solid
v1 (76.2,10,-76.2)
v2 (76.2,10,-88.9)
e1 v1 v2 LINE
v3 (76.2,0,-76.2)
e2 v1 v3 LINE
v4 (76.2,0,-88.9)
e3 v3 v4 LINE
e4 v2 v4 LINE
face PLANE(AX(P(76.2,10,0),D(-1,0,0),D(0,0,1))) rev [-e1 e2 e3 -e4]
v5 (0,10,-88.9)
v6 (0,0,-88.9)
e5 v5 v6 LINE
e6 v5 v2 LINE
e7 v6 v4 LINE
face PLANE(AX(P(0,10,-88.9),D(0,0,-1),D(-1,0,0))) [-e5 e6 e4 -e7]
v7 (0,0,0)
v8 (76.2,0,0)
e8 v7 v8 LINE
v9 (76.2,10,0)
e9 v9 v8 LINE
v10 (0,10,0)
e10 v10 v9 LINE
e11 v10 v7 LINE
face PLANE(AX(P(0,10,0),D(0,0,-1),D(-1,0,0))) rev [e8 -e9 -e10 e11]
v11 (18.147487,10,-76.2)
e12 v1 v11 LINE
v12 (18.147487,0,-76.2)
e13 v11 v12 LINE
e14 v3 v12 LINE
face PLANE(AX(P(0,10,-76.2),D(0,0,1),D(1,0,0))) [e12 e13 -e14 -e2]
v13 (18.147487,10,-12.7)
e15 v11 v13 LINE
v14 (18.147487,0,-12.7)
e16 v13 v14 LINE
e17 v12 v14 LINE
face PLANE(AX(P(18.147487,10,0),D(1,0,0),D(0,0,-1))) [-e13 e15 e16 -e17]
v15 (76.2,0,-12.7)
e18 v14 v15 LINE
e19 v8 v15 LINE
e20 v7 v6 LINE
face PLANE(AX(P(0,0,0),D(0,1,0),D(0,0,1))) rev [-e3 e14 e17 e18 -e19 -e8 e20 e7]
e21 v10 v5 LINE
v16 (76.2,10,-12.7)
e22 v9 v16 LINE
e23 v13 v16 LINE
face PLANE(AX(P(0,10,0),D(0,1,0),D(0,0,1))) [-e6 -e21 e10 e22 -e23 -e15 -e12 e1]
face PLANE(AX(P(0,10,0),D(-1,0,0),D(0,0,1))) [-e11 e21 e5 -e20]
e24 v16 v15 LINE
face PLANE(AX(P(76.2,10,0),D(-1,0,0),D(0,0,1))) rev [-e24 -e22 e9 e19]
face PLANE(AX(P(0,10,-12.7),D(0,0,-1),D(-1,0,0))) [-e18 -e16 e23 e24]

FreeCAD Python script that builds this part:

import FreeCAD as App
import Part
import Sketcher
from FreeCAD import Vector
Q = App.Units.Quantity


def add_polygon(sketch, points):
    """Adds a closed chain of lines whose ends are joined by coincident constraints."""
    first, n = sketch.GeometryCount, len(points)
    for a, b in zip(points, points[1:] + points[:1]):
        sketch.addGeometry(Part.LineSegment(App.Vector(*a, 0), App.Vector(*b, 0)), False)
    for i in range(n):
        sketch.addConstraint(Sketcher.Constraint("Coincident", first + i, 2, first + (i + 1) % n, 1))

doc = App.newDocument("Part")
body = doc.addObject("PartDesign::Body", "Body")

# Sketch on XZ plane
sketch1 = body.newObject("Sketcher::SketchObject", "Sketch")
sketch1.AttachmentSupport = (doc.getObject("XZ_Plane"), [""])
sketch1.MapMode = "FlatFace"
add_polygon(sketch1, [(18, -76), (76, -76), (76, -89), (0, -89), (0, 0), (76, 0), (76, -13), (18, -13)])  # lines 0-7
sketch1.addConstraint(Sketcher.Constraint("Horizontal", 0))
sketch1.addConstraint(Sketcher.Constraint("Vertical", 1))
sketch1.addConstraint(Sketcher.Constraint("Horizontal", 2))
sketch1.addConstraint(Sketcher.Constraint("Vertical", 3))
sketch1.addConstraint(Sketcher.Constraint("Horizontal", 4))
sketch1.addConstraint(Sketcher.Constraint("Vertical", 5))
sketch1.addConstraint(Sketcher.Constraint("Horizontal", 6))
sketch1.addConstraint(Sketcher.Constraint("Vertical", 7))
sketch1.addConstraint(Sketcher.Constraint("Coincident", 3, 2, -1, 1))
sketch1.addConstraint(Sketcher.Constraint("Vertical", 1, 2, 4, 2))
sketch1.addConstraint(Sketcher.Constraint("Equal", 1, 5))
sketch1.addConstraint(Sketcher.Constraint("DistanceX", 2, 2, 2, 1, Q("3 in")))
sketch1.addConstraint(Sketcher.Constraint("DistanceY", 1, 2, 1, 1, Q("0.5 in")))
sketch1.addConstraint(Sketcher.Constraint("DistanceY", 3, 1, 3, 2, Q("3.5 in")))
sketch1.addConstraint(Sketcher.Constraint("DistanceX", 0, 1, 0, 2, Q("58.052513 mm")))
pad1 = body.newObject("PartDesign::Pad", "Pad")
pad1.Profile = sketch1
pad1.Length = 10
pad1.Reversed = True

doc.recompute()
